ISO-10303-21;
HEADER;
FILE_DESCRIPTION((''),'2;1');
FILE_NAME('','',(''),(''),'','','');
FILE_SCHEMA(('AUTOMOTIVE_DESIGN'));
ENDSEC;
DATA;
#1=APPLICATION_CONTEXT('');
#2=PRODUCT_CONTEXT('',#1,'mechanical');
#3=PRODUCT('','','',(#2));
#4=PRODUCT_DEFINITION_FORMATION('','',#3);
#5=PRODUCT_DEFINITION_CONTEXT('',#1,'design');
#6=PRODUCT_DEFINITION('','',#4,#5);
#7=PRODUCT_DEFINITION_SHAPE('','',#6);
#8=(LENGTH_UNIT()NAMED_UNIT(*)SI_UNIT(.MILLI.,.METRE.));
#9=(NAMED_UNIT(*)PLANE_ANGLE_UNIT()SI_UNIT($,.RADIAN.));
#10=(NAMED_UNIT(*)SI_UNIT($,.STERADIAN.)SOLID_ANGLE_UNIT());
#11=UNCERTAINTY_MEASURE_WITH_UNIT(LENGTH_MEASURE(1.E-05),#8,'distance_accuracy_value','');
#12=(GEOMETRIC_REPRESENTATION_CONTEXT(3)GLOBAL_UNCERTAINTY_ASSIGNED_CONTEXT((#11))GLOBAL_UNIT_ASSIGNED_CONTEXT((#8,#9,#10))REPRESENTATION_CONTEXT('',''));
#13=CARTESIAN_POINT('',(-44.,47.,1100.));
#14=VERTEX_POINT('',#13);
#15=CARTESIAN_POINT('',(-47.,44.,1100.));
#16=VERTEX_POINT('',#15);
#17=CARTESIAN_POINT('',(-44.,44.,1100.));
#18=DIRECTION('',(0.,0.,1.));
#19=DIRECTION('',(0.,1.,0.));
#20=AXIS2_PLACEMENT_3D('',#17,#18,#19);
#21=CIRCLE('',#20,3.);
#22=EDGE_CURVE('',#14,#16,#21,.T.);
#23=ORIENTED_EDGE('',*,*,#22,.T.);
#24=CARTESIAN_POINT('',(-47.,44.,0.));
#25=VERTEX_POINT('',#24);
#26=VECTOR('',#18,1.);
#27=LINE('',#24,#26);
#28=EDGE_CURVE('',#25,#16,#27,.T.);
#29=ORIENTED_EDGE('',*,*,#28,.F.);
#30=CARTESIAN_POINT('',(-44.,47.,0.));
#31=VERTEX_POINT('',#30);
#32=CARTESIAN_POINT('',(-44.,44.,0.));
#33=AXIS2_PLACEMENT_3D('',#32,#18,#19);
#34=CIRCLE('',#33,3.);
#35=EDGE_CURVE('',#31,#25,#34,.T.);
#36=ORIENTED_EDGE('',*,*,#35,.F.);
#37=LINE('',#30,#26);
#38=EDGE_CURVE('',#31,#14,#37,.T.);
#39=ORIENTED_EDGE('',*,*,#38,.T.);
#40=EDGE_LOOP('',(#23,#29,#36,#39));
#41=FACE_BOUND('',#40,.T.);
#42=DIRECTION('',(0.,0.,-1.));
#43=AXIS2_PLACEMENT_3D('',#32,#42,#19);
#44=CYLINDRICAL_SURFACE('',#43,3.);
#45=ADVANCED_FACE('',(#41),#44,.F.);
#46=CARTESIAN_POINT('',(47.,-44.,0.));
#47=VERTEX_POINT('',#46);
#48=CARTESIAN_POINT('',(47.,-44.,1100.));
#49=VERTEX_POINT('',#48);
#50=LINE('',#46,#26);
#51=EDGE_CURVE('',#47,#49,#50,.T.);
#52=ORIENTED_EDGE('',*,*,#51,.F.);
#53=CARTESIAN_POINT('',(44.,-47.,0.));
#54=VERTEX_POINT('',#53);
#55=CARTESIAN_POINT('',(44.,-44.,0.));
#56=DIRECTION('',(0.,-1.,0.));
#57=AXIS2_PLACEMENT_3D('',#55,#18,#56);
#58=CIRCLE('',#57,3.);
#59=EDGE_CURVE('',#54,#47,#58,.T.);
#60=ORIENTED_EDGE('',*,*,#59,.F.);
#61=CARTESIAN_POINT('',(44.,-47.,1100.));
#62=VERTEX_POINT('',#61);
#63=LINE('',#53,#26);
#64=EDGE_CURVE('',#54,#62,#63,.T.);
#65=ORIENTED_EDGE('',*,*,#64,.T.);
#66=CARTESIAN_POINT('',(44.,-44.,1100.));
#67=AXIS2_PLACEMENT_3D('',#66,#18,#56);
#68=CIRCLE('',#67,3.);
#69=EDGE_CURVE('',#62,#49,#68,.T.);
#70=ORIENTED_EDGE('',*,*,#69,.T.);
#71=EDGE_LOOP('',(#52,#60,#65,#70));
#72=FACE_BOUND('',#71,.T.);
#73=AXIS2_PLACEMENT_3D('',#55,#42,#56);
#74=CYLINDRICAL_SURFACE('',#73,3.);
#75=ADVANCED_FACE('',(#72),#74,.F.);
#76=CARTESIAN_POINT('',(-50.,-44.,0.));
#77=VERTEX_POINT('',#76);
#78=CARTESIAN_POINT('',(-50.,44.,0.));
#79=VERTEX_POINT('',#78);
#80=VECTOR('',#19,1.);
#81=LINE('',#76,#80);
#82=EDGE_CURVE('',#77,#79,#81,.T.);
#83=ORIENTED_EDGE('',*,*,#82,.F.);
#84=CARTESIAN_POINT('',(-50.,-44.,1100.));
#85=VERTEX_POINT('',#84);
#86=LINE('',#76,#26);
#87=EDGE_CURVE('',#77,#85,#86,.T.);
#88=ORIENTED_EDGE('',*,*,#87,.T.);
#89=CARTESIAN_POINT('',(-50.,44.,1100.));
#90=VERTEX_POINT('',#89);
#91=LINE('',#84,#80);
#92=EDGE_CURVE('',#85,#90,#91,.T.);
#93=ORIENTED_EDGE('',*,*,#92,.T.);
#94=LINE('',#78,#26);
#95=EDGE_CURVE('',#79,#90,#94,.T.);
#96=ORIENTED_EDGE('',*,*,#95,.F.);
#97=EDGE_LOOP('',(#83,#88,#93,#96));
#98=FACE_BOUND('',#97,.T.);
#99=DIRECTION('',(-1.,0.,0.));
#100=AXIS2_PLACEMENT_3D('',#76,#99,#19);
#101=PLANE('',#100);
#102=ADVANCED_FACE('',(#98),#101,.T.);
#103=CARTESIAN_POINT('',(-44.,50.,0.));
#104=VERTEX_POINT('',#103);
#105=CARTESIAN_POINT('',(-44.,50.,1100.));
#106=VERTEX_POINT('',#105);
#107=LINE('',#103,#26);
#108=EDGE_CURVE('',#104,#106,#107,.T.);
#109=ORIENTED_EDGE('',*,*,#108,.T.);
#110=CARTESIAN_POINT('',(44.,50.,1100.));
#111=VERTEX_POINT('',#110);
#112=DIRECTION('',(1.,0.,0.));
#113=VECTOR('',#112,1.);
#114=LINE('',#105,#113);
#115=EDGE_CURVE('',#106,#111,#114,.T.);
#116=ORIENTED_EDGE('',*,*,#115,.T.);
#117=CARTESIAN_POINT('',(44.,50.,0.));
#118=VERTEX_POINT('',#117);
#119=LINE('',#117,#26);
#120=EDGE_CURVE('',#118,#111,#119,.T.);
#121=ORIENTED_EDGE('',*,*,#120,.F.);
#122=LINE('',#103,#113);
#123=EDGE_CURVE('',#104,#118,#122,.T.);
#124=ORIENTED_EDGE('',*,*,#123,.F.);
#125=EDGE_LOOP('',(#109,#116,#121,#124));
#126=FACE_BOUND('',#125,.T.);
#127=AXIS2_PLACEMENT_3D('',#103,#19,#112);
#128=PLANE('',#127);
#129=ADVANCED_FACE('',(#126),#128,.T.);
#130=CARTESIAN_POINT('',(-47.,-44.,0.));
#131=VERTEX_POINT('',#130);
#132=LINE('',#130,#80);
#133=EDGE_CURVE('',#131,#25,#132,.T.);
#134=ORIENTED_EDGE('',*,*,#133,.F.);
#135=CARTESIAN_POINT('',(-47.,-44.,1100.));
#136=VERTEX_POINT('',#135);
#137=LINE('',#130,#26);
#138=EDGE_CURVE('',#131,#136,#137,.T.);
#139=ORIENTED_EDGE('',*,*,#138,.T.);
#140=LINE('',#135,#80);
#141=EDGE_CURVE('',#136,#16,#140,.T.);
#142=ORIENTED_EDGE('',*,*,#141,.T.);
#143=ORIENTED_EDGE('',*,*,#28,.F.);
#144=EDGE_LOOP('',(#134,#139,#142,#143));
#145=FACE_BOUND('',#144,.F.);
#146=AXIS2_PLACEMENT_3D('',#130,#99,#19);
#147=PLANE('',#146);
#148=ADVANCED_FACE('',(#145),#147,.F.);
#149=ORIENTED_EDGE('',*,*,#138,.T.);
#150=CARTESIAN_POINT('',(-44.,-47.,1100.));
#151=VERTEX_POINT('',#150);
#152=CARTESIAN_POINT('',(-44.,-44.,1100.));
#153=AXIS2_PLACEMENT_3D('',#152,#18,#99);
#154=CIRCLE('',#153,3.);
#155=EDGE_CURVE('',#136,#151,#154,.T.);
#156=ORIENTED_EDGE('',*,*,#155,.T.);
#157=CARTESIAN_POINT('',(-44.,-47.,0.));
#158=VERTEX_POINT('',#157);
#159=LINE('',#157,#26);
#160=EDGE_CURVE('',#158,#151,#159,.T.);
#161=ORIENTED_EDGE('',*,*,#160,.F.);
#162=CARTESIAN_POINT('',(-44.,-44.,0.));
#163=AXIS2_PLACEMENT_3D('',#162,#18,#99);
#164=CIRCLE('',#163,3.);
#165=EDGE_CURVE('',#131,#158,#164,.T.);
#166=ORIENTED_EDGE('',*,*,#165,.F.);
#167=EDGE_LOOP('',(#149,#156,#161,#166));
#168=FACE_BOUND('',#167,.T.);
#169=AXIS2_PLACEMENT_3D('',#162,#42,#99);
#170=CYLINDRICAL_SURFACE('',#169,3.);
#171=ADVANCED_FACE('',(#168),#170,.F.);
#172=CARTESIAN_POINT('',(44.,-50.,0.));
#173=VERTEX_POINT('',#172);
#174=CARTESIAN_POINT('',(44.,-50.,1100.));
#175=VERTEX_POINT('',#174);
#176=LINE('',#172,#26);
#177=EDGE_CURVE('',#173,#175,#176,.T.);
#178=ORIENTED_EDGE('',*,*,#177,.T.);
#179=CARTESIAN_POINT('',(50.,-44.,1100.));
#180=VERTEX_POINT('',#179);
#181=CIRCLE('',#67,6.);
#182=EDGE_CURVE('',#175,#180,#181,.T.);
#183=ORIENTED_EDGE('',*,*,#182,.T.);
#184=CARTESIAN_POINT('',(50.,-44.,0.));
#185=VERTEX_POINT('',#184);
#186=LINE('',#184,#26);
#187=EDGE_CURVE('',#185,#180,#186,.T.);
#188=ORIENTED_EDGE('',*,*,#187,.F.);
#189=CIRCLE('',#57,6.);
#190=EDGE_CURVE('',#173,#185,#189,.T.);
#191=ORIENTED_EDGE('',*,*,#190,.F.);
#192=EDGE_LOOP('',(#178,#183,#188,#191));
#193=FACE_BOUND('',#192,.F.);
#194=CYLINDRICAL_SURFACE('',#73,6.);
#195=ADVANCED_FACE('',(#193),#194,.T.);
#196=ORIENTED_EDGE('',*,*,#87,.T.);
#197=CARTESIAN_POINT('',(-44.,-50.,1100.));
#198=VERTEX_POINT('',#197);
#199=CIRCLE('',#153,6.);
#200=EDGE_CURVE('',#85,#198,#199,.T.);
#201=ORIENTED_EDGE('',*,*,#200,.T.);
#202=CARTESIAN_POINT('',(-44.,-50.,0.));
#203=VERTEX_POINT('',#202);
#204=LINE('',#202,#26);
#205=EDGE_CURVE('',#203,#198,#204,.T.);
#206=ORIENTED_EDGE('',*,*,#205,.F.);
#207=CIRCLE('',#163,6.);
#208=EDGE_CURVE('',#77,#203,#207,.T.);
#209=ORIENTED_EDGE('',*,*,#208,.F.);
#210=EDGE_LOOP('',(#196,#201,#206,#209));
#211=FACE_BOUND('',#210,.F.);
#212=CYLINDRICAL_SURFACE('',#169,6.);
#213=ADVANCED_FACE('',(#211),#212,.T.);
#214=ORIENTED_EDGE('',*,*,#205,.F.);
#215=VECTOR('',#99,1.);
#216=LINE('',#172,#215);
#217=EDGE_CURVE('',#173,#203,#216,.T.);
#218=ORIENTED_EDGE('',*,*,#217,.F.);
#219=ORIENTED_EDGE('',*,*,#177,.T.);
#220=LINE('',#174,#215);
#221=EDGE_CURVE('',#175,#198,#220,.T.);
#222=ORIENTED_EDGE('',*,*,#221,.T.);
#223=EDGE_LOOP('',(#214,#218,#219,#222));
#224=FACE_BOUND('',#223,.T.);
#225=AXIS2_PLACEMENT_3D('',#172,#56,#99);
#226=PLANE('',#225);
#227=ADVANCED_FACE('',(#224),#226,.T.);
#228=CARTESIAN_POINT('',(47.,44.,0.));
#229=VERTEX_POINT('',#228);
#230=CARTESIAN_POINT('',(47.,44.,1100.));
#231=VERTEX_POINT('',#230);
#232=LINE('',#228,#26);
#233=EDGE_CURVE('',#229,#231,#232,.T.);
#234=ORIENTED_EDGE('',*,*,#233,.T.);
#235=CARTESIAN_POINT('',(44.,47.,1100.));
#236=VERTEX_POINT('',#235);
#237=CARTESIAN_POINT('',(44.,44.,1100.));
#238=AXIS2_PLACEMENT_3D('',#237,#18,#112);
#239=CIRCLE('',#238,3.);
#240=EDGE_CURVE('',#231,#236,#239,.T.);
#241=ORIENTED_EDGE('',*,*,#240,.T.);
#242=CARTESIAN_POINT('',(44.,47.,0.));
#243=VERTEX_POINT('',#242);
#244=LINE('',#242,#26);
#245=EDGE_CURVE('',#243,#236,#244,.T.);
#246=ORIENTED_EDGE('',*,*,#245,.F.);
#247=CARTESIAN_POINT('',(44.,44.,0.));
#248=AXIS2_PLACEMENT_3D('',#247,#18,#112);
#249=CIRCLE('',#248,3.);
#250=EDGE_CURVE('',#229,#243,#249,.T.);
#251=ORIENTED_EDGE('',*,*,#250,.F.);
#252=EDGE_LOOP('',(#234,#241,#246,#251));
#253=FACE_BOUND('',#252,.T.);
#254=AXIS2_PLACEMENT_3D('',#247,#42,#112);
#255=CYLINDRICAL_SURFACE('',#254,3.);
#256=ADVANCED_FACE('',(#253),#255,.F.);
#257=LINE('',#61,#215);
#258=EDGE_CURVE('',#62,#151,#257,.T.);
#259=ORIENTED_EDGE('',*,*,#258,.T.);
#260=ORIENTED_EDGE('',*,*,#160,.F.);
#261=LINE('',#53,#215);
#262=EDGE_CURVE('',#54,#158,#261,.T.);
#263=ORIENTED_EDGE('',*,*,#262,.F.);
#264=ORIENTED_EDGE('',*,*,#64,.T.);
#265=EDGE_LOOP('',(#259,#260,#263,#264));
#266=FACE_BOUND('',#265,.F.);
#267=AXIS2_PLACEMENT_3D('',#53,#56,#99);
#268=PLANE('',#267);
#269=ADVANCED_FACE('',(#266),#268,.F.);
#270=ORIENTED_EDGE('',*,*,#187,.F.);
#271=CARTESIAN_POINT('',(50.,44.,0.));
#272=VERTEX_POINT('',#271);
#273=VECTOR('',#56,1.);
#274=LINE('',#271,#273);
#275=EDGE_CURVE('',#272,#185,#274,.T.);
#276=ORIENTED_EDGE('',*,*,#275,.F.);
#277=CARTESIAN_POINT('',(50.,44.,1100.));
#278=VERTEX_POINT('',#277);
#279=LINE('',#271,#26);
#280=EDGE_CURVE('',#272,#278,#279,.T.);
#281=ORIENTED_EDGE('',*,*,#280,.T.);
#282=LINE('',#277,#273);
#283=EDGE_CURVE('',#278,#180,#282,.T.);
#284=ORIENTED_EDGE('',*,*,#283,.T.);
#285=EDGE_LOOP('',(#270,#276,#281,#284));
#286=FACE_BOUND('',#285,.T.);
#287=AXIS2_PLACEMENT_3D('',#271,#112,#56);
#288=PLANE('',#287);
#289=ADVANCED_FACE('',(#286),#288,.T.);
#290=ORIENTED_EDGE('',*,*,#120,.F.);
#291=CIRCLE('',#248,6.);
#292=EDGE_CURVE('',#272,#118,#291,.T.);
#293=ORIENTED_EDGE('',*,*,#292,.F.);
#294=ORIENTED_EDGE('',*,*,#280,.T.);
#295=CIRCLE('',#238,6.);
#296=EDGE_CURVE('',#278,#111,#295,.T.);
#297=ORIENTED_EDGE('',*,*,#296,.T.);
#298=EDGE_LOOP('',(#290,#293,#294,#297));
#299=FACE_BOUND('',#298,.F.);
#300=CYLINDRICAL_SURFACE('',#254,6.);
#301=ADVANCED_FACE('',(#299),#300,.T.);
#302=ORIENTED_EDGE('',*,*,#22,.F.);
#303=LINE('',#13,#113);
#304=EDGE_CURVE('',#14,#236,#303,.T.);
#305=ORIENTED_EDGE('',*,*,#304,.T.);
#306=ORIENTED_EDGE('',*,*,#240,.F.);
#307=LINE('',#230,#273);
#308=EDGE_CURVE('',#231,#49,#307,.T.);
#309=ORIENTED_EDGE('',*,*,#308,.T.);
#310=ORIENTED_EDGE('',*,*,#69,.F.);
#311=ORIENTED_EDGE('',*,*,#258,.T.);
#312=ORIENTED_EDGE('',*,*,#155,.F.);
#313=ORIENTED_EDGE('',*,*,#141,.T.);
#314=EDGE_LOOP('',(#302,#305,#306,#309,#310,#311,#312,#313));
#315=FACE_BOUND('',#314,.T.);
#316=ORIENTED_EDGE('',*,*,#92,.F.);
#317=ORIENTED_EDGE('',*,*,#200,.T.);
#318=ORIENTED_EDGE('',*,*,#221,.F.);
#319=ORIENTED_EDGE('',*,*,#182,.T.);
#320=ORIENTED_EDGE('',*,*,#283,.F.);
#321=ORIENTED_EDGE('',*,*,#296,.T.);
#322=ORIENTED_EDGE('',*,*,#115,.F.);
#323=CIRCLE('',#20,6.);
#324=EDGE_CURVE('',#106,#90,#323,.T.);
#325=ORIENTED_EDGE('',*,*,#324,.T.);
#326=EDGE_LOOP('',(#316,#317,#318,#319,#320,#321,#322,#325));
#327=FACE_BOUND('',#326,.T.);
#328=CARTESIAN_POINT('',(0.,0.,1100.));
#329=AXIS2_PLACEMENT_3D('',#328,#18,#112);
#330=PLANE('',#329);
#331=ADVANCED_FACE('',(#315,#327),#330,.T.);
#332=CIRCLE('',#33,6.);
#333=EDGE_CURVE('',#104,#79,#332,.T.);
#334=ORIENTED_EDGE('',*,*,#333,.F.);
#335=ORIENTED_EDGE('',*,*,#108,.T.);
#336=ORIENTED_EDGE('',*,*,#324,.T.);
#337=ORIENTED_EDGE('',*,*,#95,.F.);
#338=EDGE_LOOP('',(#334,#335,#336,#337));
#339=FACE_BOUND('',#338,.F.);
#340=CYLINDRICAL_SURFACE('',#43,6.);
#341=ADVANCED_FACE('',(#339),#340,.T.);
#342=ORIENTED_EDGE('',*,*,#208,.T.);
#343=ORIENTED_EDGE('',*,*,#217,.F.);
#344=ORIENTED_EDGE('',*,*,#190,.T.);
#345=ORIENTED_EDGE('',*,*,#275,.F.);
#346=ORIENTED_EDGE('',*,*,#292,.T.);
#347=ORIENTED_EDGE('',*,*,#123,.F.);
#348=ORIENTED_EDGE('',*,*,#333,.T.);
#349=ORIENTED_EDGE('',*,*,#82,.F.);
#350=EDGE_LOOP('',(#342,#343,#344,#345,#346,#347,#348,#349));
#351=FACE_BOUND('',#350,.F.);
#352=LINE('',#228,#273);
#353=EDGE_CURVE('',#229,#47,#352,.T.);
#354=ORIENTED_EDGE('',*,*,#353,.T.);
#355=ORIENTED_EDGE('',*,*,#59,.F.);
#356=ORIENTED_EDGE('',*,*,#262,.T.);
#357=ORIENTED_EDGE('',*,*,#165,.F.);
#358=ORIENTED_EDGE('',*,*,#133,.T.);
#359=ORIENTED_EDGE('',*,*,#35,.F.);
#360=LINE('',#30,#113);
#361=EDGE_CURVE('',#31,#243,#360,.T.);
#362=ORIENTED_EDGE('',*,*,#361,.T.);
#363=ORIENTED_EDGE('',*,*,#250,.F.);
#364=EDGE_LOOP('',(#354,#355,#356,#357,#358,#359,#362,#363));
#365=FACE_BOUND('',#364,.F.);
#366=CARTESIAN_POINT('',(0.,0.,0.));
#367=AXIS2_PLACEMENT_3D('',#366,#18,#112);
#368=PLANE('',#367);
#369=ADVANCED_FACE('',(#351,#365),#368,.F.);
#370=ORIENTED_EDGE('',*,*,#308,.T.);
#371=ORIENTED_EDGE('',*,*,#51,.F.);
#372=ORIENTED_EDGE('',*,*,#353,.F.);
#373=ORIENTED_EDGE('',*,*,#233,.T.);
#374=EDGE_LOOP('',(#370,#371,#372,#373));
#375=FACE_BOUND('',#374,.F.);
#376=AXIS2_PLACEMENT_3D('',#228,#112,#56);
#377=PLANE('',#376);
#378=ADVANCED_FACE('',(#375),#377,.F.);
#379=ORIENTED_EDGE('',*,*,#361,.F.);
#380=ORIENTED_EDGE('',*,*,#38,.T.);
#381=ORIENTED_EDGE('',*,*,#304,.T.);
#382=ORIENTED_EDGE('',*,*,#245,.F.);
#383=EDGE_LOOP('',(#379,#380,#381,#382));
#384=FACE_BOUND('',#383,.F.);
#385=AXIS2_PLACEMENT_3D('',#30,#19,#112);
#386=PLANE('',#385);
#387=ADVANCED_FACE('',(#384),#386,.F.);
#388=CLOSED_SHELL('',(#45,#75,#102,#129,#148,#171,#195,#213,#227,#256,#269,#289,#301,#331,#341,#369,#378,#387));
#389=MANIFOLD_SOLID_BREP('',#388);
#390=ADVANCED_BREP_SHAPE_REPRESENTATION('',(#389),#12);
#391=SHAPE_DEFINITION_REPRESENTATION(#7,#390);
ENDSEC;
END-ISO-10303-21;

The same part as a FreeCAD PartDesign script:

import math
import FreeCAD as App
import Part
import Sketcher
from FreeCAD import Vector

doc = App.newDocument("Part")
params = doc.addObject("Spreadsheet::Sheet", "Params")
for row, (alias, value) in enumerate([
    ("sketch1_radius", "6 mm"),
    ("sketch1_radius2", "3 mm"),
    ("pad1_length", "1100 mm"),
], start=1):
    params.set(f"A{row}", alias)
    params.set(f"B{row}", "=" + value)
    params.setAlias(f"B{row}", alias)

body = doc.addObject("PartDesign::Body", "Body")

sketch1 = doc.addObject("Sketcher::SketchObject", "Sketch")
body.addObject(sketch1)
sketch1.AttachmentSupport = (doc.XY_Plane, [""])
sketch1.MapMode = "FlatFace"
sketch1.addGeometry([
    Part.LineSegment(Vector(-50, 44, 0), Vector(-50, -44, 0)),
    Part.ArcOfCircle(Part.Circle(Vector(-44, -44, 0), Vector(0, 0, 1), 6), math.radians(180), math.radians(270)),
    Part.LineSegment(Vector(-44, -50, 0), Vector(44, -50, 0)),
    Part.ArcOfCircle(Part.Circle(Vector(44, -44, 0), Vector(0, 0, 1), 6), math.radians(-90), math.radians(0)),
    Part.LineSegment(Vector(50, -44, 0), Vector(50, 44, 0)),
    Part.ArcOfCircle(Part.Circle(Vector(44, 44, 0), Vector(0, 0, 1), 6), math.radians(0), math.radians(90)),
    Part.LineSegment(Vector(44, 50, 0), Vector(-44, 50, 0)),
    Part.ArcOfCircle(Part.Circle(Vector(-44, 44, 0), Vector(0, 0, 1), 6), math.radians(90), math.radians(180)),
    Part.ArcOfCircle(Part.Circle(Vector(-44, 44, 0), Vector(0, 0, 1), 3), math.radians(90), math.radians(180)),
    Part.LineSegment(Vector(-44, 47, 0), Vector(44, 47, 0)),
    Part.ArcOfCircle(Part.Circle(Vector(44, 44, 0), Vector(0, 0, 1), 3), math.radians(0), math.radians(90)),
    Part.LineSegment(Vector(47, 44, 0), Vector(47, -44, 0)),
    Part.ArcOfCircle(Part.Circle(Vector(44, -44, 0), Vector(0, 0, 1), 3), math.radians(-90), math.radians(0)),
    Part.LineSegment(Vector(44, -47, 0), Vector(-44, -47, 0)),
    Part.ArcOfCircle(Part.Circle(Vector(-44, -44, 0), Vector(0, 0, 1), 3), math.radians(180), math.radians(270)),
    Part.LineSegment(Vector(-47, -44, 0), Vector(-47, 44, 0)),
], False)
sketch1.addConstraint([
    Sketcher.Constraint("Tangent", 0, 2, 1, 1),
    Sketcher.Constraint("Tangent", 1, 2, 2, 1),
    Sketcher.Constraint("Tangent", 2, 2, 3, 1),
    Sketcher.Constraint("Tangent", 3, 2, 4, 1),
    Sketcher.Constraint("Tangent", 4, 2, 5, 1),
    Sketcher.Constraint("Tangent", 5, 2, 6, 1),
    Sketcher.Constraint("Tangent", 6, 2, 7, 1),
    Sketcher.Constraint("Tangent", 7, 2, 0, 1),
    Sketcher.Constraint("Tangent", 8, 1, 9, 1),
    Sketcher.Constraint("Tangent", 9, 2, 10, 2),
    Sketcher.Constraint("Tangent", 10, 1, 11, 1),
    Sketcher.Constraint("Tangent", 11, 2, 12, 2),
    Sketcher.Constraint("Tangent", 12, 1, 13, 1),
    Sketcher.Constraint("Tangent", 13, 2, 14, 2),
    Sketcher.Constraint("Tangent", 14, 1, 15, 1),
    Sketcher.Constraint("Tangent", 15, 2, 8, 2),
    Sketcher.Constraint("Vertical", 0),
    Sketcher.Constraint("Horizontal", 2),
    Sketcher.Constraint("Vertical", 4),
    Sketcher.Constraint("Horizontal", 6),
    Sketcher.Constraint("Horizontal", 9),
    Sketcher.Constraint("Vertical", 11),
    Sketcher.Constraint("Horizontal", 13),
    Sketcher.Constraint("Vertical", 15),
    Sketcher.Constraint("Coincident", 8, 3, 7, 3),
    Sketcher.Constraint("Coincident", 10, 3, 5, 3),
    Sketcher.Constraint("Coincident", 12, 3, 3, 3),
    Sketcher.Constraint("Equal", 1, 3),
    Sketcher.Constraint("Equal", 3, 5),
    Sketcher.Constraint("Equal", 5, 7),
    Sketcher.Constraint("Equal", 12, 14),
    Sketcher.Constraint("Symmetric", 1, 3, 5, 3, -1, 1),
    Sketcher.Constraint("Equal", 13, 0),
    Sketcher.Constraint("Radius", 1, 6.0),
    Sketcher.Constraint("Radius", 8, 3.0),
    Sketcher.Constraint("DistanceX", 0, 2, -1, 1, 50.0),
])
sketch1.setExpression("Constraints[33]", "Params.sketch1_radius")
sketch1.setExpression("Constraints[34]", "Params.sketch1_radius2")
pad1 = doc.addObject("PartDesign::Pad", "Pad")
body.addObject(pad1)
pad1.Profile = sketch1
pad1.setExpression("Length", "Params.pad1_length")

doc.recompute()
